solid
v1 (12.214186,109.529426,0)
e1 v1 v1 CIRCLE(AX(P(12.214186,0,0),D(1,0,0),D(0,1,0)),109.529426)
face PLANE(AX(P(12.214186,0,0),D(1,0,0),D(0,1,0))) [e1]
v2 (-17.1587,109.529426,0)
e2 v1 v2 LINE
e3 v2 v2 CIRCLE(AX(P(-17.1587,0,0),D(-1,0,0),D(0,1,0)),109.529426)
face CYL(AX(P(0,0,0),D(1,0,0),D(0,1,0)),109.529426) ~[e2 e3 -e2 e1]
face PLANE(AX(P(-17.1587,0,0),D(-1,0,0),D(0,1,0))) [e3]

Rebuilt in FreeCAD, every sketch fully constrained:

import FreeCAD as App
import Part
import Sketcher
from FreeCAD import Vector
Q = App.Units.Quantity

doc = App.newDocument("Part")
body = doc.addObject("PartDesign::Body", "Body")

sketch1 = body.newObject("Sketcher::SketchObject", "Sketch")
sketch1.AttachmentSupport = (doc.getObject("YZ_Plane"), [""])
sketch1.MapMode = "FlatFace"
sketch1.addGeometry(Part.Circle(Vector(0, 0, 0), Vector(0, 0, 1), 109.529426), False)
sketch1.addConstraint(Sketcher.Constraint("Coincident", 0, 3, -1, 1))
sketch1.addConstraint(Sketcher.Constraint("Diameter", 0, Q("219.058852 mm")))
pad1 = body.newObject("PartDesign::Pad", "Pad")
pad1.Profile = sketch1
pad1.Length = 12.214186

sketch2 = body.newObject("Sketcher::SketchObject", "Sketch001")
sketch2.AttachmentSupport = (doc.getObject("YZ_Plane"), [""])
sketch2.MapMode = "FlatFace"
sketch2.addGeometry(Part.Circle(Vector(0, 0, 0), Vector(0, 0, 1), 109.529426), False)
sketch2.addConstraint(Sketcher.Constraint("Coincident", 0, 3, -1, 1))
sketch2.addConstraint(Sketcher.Constraint("Diameter", 0, Q("219.058852 mm")))
pad2 = body.newObject("PartDesign::Pad", "Pad001")
pad2.Profile = sketch2
pad2.Length = 17.1587
pad2.Reversed = True

doc.recompute()
